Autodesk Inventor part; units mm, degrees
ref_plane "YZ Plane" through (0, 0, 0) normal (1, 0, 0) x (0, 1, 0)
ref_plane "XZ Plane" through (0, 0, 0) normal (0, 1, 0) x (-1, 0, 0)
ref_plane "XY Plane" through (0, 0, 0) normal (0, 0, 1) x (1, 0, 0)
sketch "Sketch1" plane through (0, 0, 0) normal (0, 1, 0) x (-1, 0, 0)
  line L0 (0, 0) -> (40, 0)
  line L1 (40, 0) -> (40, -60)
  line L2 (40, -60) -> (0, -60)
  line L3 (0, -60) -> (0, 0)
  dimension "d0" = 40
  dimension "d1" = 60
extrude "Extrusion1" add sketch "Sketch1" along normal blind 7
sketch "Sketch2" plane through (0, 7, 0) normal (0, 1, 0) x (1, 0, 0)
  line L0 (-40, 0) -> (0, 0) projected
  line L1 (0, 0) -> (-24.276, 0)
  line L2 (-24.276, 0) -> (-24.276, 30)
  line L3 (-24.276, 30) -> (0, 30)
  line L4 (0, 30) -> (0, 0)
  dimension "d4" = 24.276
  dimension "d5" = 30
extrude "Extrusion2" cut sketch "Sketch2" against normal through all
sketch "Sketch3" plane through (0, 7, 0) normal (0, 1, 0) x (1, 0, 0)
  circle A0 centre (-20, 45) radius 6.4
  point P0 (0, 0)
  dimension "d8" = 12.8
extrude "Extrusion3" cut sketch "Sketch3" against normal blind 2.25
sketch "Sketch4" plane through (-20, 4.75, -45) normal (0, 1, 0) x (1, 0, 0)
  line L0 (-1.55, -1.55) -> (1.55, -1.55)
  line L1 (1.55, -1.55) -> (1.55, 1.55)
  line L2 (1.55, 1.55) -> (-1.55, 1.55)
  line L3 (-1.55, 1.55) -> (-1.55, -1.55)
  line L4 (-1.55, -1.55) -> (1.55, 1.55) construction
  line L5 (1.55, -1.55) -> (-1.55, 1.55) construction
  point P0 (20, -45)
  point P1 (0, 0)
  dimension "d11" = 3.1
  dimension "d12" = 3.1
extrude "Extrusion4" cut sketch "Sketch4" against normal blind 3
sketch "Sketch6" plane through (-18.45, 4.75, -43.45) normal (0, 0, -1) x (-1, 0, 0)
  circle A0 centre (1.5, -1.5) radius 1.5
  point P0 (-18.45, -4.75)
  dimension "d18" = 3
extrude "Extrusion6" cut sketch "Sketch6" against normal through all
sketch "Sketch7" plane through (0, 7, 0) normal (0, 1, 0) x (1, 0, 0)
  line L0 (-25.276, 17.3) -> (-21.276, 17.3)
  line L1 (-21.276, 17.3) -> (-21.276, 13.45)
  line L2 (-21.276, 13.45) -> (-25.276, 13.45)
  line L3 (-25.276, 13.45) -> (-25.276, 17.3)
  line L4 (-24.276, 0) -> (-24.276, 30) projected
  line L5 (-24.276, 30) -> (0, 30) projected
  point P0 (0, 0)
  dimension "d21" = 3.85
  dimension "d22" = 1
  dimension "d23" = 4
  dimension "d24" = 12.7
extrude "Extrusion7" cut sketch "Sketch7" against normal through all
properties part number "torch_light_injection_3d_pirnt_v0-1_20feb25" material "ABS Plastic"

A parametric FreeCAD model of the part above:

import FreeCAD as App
import Part
import Sketcher


def add_polygon(sketch, points):
    """Adds a closed chain of lines whose ends are joined by coincident constraints."""
    first, n = sketch.GeometryCount, len(points)
    for a, b in zip(points, points[1:] + points[:1]):
        sketch.addGeometry(Part.LineSegment(App.Vector(*a, 0), App.Vector(*b, 0)), False)
    for i in range(n):
        sketch.addConstraint(Sketcher.Constraint("Coincident", first + i, 2, first + (i + 1) % n, 1))

doc = App.newDocument("Part")
params = doc.addObject("Spreadsheet::Sheet", "Params")
for row, (alias, value) in enumerate([
    ("sketch1_width", "40 mm"),
    ("sketch1_height", "60 mm"),
    ("pad1_length", "7 mm"),
    ("sketch2_height", "30 mm"),
    ("sketch3_diameter", "12.8 mm"),
    ("pocket2_length", "2.25 mm"),
    ("sketch4_width", "3.1 mm"),
    ("pocket3_length", "3 mm"),
    ("sketch5_diameter", "3 mm"),
    ("sketch6_width", "4 mm"),
    ("sketch6_height", "3.85 mm"),
], start=1):
    params.set(f"A{row}", alias)
    params.set(f"B{row}", "=" + value)
    params.setAlias(f"B{row}", alias)

body = doc.addObject("PartDesign::Body", "Body")

# Sketch on XZ plane
sketch1 = doc.addObject("Sketcher::SketchObject", "Sketch")
body.addObject(sketch1)
sketch1.AttachmentSupport = (doc.XZ_Plane, [""])
sketch1.MapMode = "FlatFace"
add_polygon(sketch1, [(-40, 0), (0, 0), (0, -60), (-40, -60)])  # lines 0-3
sketch1.addConstraint([
    Sketcher.Constraint("Horizontal", 0),
    Sketcher.Constraint("Vertical", 1),
    Sketcher.Constraint("Horizontal", 2),
    Sketcher.Constraint("Vertical", 3),
    Sketcher.Constraint("Coincident", 0, 2, -1, 1),
    Sketcher.Constraint("DistanceX", 0, 1, 0, 2, 40.0),
    Sketcher.Constraint("DistanceY", 1, 2, 1, 1, 60.0),
])
sketch1.setExpression("Constraints[9]", "Params.sketch1_width")
sketch1.setExpression("Constraints[10]", "Params.sketch1_height")
pad1 = doc.addObject("PartDesign::Pad", "Pad")
body.addObject(pad1)
pad1.Profile = sketch1
pad1.setExpression("Length", "Params.pad1_length")
pad1.Reversed = True

# Sketch on XZ plane
sketch2 = doc.addObject("Sketcher::SketchObject", "Sketch001")
body.addObject(sketch2)
sketch2.AttachmentSupport = (doc.XZ_Plane, [""])
sketch2.MapMode = "FlatFace"
sketch2.AttachmentOffset = App.Placement(App.Vector(0, 0, -7), App.Rotation())
add_polygon(sketch2, [(-24, -30), (-24, 0), (0, 0), (0, -30)])  # lines 0-3
sketch2.addConstraint([
    Sketcher.Constraint("Vertical", 0),
    Sketcher.Constraint("Horizontal", 1),
    Sketcher.Constraint("Vertical", 2),
    Sketcher.Constraint("Horizontal", 3),
    Sketcher.Constraint("Coincident", 1, 2, -1, 1),
    Sketcher.Constraint("DistanceY", 0, 1, 0, 2, 30.0),
    Sketcher.Constraint("DistanceX", 1, 1, 1, 2, 24.276),
])
sketch2.setExpression("Constraints[9]", "Params.sketch2_height")
pocket1 = doc.addObject("PartDesign::Pocket", "Pocket")
body.addObject(pocket1)
pocket1.Profile = sketch2
pocket1.Type = "ThroughAll"
pocket1.Reversed = True

# Sketch on XZ plane
sketch3 = doc.addObject("Sketcher::SketchObject", "Sketch002")
body.addObject(sketch3)
sketch3.AttachmentSupport = (doc.XZ_Plane, [""])
sketch3.MapMode = "FlatFace"
sketch3.AttachmentOffset = App.Placement(App.Vector(0, 0, -7), App.Rotation())
sketch3.addGeometry(Part.Circle(App.Vector(-20, -45, 0), App.Vector(0, 0, 1), 6), False)
sketch3.addConstraint([
    Sketcher.Constraint("Diameter", 0, 12.8),
    Sketcher.Constraint("DistanceX", 0, 3, -1, 1, 20.0),
    Sketcher.Constraint("DistanceY", 0, 3, -1, 1, 45.0),
])
sketch3.setExpression("Constraints[0]", "Params.sketch3_diameter")
pocket2 = doc.addObject("PartDesign::Pocket", "Pocket001")
body.addObject(pocket2)
pocket2.Profile = sketch3
pocket2.setExpression("Length", "Params.pocket2_length")
pocket2.Reversed = True

# Sketch on XZ plane
sketch4 = doc.addObject("Sketcher::SketchObject", "Sketch003")
body.addObject(sketch4)
sketch4.AttachmentSupport = (doc.XZ_Plane, [""])
sketch4.MapMode = "FlatFace"
sketch4.AttachmentOffset = App.Placement(App.Vector(0, 0, -4.75), App.Rotation())
add_polygon(sketch4, [(-21.6, -46.5), (-21.6, -43.5), (-18.4, -43.5), (-18.4, -46.5)])  # lines 0-3
sketch4.addConstraint([
    Sketcher.Constraint("Vertical", 0),
    Sketcher.Constraint("Horizontal", 1),
    Sketcher.Constraint("Vertical", 2),
    Sketcher.Constraint("Horizontal", 3),
    Sketcher.Constraint("Equal", 3, 0),
    Sketcher.Constraint("DistanceX", 1, 1, 1, 2, 3.1),
    Sketcher.Constraint("DistanceX", 0, 2, -1, 1, 21.55),
    Sketcher.Constraint("DistanceY", 0, 2, -1, 1, 43.45),
])
sketch4.setExpression("Constraints[9]", "Params.sketch4_width")
pocket3 = doc.addObject("PartDesign::Pocket", "Pocket002")
body.addObject(pocket3)
pocket3.Profile = sketch4
pocket3.setExpression("Length", "Params.pocket3_length")
pocket3.Reversed = True

# Sketch on XY plane
sketch5 = doc.addObject("Sketcher::SketchObject", "Sketch004")
body.addObject(sketch5)
sketch5.AttachmentSupport = (doc.XY_Plane, [""])
sketch5.MapMode = "FlatFace"
sketch5.AttachmentOffset = App.Placement(App.Vector(0, 0, -43.45), App.Rotation())
sketch5.addGeometry(Part.Circle(App.Vector(-19.9, 3.2, 0), App.Vector(0, 0, 1), 1.5), False)
sketch5.addConstraint([
    Sketcher.Constraint("Diameter", 0, 3.0),
    Sketcher.Constraint("DistanceX", 0, 3, -1, 1, 19.95),
    Sketcher.Constraint("DistanceY", -1, 1, 0, 3, 3.25),
])
sketch5.setExpression("Constraints[0]", "Params.sketch5_diameter")
pocket4 = doc.addObject("PartDesign::Pocket", "Pocket003")
body.addObject(pocket4)
pocket4.Profile = sketch5
pocket4.Type = "ThroughAll"
pocket4.Reversed = True

# Sketch on XZ plane
sketch6 = doc.addObject("Sketcher::SketchObject", "Sketch005")
body.addObject(sketch6)
sketch6.AttachmentSupport = (doc.XZ_Plane, [""])
sketch6.MapMode = "FlatFace"
sketch6.AttachmentOffset = App.Placement(App.Vector(0, 0, -7), App.Rotation())
add_polygon(sketch6, [(-25.3, -17.3), (-25.3, -13.4), (-21.3, -13.4), (-21.3, -17.3)])  # lines 0-3
sketch6.addConstraint([
    Sketcher.Constraint("Vertical", 0),
    Sketcher.Constraint("Horizontal", 1),
    Sketcher.Constraint("Vertical", 2),
    Sketcher.Constraint("Horizontal", 3),
    Sketcher.Constraint("DistanceX", 1, 1, 1, 2, 4.0),
    Sketcher.Constraint("DistanceY", 0, 1, 0, 2, 3.85),
    Sketcher.Constraint("DistanceY", 2, 2, -1, 1, 17.3),
    Sketcher.Constraint("DistanceX", 0, 2, -1, 1, 25.276),
])
sketch6.setExpression("Constraints[8]", "Params.sketch6_width")
sketch6.setExpression("Constraints[9]", "Params.sketch6_height")
pocket5 = doc.addObject("PartDesign::Pocket", "Pocket004")
body.addObject(pocket5)
pocket5.Profile = sketch6
pocket5.Type = "ThroughAll"
pocket5.Reversed = True

doc.recompute()
